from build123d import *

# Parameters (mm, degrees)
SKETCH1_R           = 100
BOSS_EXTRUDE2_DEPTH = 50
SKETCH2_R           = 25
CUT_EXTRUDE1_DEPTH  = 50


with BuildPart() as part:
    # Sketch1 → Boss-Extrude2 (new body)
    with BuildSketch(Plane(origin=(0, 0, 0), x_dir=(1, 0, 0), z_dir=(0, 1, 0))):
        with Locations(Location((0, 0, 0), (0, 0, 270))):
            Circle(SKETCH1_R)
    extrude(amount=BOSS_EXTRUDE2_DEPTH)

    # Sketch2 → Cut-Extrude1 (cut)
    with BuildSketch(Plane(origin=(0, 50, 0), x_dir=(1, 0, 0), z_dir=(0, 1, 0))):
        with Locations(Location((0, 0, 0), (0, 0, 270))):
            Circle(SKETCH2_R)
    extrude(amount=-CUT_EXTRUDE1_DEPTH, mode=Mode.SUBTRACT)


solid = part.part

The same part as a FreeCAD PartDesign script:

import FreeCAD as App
import Part
import Sketcher

V = App.Vector
Q = App.Units.Quantity

doc = App.newDocument("Part")
body = doc.addObject("PartDesign::Body", "Body")

# Sketch on XZ plane
sketch1 = doc.addObject("Sketcher::SketchObject", "Sketch")
body.addObject(sketch1)
sketch1.AttachmentSupport = (doc.XZ_Plane, [""])
sketch1.MapMode = "FlatFace"
sketch1.addGeometry(Part.Circle(V(0, 0, 0), V(0, 0, 1), 100), False)
sketch1.addConstraint([
    Sketcher.Constraint("Coincident", 0, 3, -1, 1),
    Sketcher.Constraint("Diameter", 0, Q("200 mm")),
])
pad1 = doc.addObject("PartDesign::Pad", "Pad")
body.addObject(pad1)
pad1.Profile = sketch1
pad1.Length = 50
pad1.Reversed = True

# Sketch on XZ plane
sketch2 = doc.addObject("Sketcher::SketchObject", "Sketch001")
body.addObject(sketch2)
sketch2.AttachmentSupport = (doc.XZ_Plane, [""])
sketch2.MapMode = "FlatFace"
sketch2.AttachmentOffset = App.Placement(V(0, 0, -50), App.Rotation())
sketch2.addGeometry(Part.Circle(V(0, 0, 0), V(0, 0, 1), 25), False)
sketch2.addConstraint([
    Sketcher.Constraint("Coincident", 0, 3, -1, 1),
    Sketcher.Constraint("Diameter", 0, Q("50 mm")),
])
pocket1 = doc.addObject("PartDesign::Pocket", "Pocket")
body.addObject(pocket1)
pocket1.Profile = sketch2
pocket1.Length = 50
pocket1.Reversed = True

doc.recompute()
